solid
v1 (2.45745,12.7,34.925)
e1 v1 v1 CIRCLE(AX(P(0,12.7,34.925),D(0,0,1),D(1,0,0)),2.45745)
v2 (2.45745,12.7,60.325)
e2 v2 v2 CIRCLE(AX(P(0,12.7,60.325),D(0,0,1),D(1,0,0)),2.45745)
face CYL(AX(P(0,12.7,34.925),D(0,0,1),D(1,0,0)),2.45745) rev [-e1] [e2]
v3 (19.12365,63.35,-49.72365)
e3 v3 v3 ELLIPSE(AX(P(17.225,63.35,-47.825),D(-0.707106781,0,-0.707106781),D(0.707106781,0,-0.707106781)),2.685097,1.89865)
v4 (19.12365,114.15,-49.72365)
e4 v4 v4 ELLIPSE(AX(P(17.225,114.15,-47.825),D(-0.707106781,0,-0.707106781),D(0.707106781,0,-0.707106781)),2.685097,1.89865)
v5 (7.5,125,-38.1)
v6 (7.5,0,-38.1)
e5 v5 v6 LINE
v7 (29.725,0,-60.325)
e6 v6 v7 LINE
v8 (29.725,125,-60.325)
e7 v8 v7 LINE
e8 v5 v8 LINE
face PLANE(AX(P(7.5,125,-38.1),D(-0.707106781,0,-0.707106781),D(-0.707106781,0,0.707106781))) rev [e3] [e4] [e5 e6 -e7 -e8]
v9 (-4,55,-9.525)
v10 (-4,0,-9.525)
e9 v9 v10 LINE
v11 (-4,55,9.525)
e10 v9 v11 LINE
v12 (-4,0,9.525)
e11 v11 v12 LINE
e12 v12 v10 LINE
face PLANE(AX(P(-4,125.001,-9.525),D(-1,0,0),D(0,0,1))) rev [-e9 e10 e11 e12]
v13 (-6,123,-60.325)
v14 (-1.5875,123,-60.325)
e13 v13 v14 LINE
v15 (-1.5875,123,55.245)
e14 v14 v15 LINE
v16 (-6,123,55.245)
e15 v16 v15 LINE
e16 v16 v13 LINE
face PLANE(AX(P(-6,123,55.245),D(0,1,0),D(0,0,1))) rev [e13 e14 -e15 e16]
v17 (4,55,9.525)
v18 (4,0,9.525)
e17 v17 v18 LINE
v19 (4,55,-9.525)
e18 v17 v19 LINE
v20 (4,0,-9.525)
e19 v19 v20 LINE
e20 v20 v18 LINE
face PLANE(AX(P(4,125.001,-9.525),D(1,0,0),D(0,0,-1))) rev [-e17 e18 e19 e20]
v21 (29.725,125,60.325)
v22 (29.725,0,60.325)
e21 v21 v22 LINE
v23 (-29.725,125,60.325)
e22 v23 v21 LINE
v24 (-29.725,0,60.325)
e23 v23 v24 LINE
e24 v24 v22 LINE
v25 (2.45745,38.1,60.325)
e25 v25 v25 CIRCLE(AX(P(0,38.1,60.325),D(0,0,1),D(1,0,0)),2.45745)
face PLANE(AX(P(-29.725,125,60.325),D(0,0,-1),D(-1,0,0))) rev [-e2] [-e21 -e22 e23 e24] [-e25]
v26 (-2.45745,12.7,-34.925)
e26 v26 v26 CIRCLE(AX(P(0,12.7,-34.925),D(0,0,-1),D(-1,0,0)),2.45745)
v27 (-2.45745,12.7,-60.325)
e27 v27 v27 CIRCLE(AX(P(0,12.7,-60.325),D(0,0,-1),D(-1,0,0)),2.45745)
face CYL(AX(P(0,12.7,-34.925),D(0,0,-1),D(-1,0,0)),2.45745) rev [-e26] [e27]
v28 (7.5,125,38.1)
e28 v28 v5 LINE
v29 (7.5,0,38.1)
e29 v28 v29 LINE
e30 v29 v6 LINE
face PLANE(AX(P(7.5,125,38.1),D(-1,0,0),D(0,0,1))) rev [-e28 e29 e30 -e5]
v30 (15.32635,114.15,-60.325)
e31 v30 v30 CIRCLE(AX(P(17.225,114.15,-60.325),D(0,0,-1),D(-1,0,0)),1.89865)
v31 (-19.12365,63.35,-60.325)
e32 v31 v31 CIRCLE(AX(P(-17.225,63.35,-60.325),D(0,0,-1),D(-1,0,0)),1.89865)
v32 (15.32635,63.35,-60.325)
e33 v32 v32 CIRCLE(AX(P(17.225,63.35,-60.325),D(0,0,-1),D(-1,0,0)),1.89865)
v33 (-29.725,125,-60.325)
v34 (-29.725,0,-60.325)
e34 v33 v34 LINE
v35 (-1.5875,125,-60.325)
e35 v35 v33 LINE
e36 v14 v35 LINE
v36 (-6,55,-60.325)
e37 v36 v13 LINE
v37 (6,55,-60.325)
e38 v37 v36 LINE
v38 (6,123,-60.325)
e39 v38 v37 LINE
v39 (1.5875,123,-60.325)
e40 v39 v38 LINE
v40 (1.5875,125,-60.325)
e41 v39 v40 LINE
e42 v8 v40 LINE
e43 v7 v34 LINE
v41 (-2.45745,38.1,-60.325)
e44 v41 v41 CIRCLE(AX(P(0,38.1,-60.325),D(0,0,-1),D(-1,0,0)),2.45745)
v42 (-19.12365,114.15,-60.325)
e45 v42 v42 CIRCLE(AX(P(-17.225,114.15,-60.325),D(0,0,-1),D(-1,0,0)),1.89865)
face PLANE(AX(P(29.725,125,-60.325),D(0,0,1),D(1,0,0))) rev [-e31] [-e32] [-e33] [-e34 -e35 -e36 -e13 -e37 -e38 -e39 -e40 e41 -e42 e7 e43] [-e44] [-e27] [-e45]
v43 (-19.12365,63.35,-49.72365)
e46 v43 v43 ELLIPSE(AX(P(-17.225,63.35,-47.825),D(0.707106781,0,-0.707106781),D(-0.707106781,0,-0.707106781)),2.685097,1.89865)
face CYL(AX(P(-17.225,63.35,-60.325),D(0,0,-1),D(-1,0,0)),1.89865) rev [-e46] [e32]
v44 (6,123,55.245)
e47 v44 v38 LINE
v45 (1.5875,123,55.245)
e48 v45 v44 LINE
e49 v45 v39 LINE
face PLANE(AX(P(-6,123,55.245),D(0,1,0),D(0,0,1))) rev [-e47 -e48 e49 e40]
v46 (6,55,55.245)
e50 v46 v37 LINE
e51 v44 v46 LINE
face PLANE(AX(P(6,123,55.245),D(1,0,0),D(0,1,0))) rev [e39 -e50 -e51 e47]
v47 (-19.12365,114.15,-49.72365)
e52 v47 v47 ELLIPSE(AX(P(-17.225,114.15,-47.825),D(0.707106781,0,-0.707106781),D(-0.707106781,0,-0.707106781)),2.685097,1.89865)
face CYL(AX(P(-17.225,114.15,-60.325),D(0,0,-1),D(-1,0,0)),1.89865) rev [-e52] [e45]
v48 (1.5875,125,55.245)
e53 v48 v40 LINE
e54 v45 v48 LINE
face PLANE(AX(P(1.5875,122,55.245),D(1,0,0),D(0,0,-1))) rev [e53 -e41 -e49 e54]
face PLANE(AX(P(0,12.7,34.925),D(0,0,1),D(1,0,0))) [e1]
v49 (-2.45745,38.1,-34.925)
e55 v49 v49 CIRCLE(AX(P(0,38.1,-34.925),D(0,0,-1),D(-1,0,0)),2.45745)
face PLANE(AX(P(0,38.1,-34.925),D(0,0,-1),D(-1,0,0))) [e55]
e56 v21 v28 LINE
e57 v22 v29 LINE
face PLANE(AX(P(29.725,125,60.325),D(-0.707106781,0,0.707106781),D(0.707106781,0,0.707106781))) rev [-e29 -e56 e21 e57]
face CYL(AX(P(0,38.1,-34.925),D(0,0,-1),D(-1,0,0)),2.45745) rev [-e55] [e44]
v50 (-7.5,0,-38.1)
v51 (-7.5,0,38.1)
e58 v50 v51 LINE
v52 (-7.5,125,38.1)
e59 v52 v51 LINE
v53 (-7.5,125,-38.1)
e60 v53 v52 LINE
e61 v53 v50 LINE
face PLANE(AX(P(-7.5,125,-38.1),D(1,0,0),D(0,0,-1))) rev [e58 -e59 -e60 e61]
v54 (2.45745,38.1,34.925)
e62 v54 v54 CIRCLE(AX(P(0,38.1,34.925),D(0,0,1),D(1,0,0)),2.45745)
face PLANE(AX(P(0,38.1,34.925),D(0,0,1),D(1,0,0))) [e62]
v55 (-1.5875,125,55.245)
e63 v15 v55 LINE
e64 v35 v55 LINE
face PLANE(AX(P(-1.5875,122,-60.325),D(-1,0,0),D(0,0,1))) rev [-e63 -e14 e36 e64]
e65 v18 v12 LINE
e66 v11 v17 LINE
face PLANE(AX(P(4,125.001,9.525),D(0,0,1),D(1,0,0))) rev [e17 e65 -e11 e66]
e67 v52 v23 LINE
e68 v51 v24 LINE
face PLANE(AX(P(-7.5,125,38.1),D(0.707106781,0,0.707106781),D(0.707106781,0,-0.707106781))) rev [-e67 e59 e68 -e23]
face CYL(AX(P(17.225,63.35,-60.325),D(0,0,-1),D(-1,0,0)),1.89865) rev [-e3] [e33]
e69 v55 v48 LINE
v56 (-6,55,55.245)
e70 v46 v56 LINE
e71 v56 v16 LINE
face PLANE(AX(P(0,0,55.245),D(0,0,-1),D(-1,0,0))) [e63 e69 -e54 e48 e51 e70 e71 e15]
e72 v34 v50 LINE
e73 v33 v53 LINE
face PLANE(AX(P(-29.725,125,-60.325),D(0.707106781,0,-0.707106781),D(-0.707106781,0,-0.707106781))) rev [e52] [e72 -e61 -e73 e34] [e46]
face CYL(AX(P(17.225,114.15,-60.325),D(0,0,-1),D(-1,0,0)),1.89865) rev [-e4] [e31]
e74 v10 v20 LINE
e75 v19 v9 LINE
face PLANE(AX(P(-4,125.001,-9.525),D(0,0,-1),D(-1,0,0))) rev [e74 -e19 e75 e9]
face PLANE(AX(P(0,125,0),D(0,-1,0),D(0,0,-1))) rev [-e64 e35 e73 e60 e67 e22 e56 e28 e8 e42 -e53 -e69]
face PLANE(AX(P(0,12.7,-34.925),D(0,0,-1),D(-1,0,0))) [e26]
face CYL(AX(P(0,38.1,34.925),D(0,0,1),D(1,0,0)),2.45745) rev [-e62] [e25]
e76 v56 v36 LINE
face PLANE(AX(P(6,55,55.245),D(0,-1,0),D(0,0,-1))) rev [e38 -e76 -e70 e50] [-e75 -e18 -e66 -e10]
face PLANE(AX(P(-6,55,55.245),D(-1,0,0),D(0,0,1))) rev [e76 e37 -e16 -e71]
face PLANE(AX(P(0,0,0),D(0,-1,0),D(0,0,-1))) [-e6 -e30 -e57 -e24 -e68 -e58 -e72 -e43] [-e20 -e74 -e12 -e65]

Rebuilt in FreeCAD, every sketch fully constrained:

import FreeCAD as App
import Part
import Sketcher

V = App.Vector


def add_polygon(sketch, points):
    """Adds a closed chain of lines whose ends are joined by coincident constraints."""
    first, n = sketch.GeometryCount, len(points)
    for a, b in zip(points, points[1:] + points[:1]):
        sketch.addGeometry(Part.LineSegment(App.Vector(*a, 0), App.Vector(*b, 0)), False)
    for i in range(n):
        sketch.addConstraint(Sketcher.Constraint("Coincident", first + i, 2, first + (i + 1) % n, 1))

doc = App.newDocument("Part")
body = doc.addObject("PartDesign::Body", "Body")

# Sketch on XZ plane
sketch1 = body.newObject("Sketcher::SketchObject", "Sketch")
sketch1.AttachmentSupport = (doc.getObject("XZ_Plane"), [""])
sketch1.MapMode = "FlatFace"
add_polygon(sketch1, [(-30, 60), (30, 60), (8, 38), (8, -38), (30, -60), (-30, -60), (-8, -38), (-8, 38)])  # lines 0-7
sketch1.addConstraint(Sketcher.Constraint("Horizontal", 0))
sketch1.addConstraint(Sketcher.Constraint("Vertical", 2))
sketch1.addConstraint(Sketcher.Constraint("Horizontal", 4))
sketch1.addConstraint(Sketcher.Constraint("Vertical", 6))
sketch1.addConstraint(Sketcher.Constraint("Symmetric", 0, 2, 4, 2, -1, 1))
sketch1.addConstraint(Sketcher.Constraint("Symmetric", 1, 2, 5, 2, -1, 1))
sketch1.addConstraint(Sketcher.Constraint("Perpendicular", 1, 3))
sketch1.addConstraint(Sketcher.Constraint("Perpendicular", 5, 7))
sketch1.addConstraint(Sketcher.Constraint("Horizontal", 2, 2, 5, 2))
sketch1.addConstraint(Sketcher.Constraint("Horizontal", 1, 2, 6, 2))
sketch1.addConstraint(Sketcher.Constraint("Vertical", 0, 2, 3, 2))
sketch1.addConstraint(Sketcher.Constraint("DistanceY", 2, 2, 2, 1, 76.2))
sketch1.addConstraint(Sketcher.Constraint("DistanceX", 5, 2, 2, 2, 15.0))
sketch1.addConstraint(Sketcher.Constraint("DistanceX", 0, 1, 0, 2, 59.45))
pad1 = body.newObject("PartDesign::Pad", "Pad")
pad1.Profile = sketch1
pad1.Length = 125
pad1.Reversed = True

# Sketch on XY plane
sketch2 = body.newObject("Sketcher::SketchObject", "Sketch001")
sketch2.AttachmentSupport = (doc.getObject("XY_Plane"), [""])
sketch2.MapMode = "FlatFace"
sketch2.AttachmentOffset = App.Placement(V(0, 0, -60.325), App.Rotation())
add_polygon(sketch2, [(6, 123), (6, 55), (-6, 55), (-6, 123)])  # lines 0-3
sketch2.addConstraint(Sketcher.Constraint("Vertical", 0))
sketch2.addConstraint(Sketcher.Constraint("Horizontal", 1))
sketch2.addConstraint(Sketcher.Constraint("Vertical", 2))
sketch2.addConstraint(Sketcher.Constraint("Horizontal", 3))
sketch2.addConstraint(Sketcher.Constraint("DistanceX", 1, 2, 1, 1, 12.0))
sketch2.addConstraint(Sketcher.Constraint("DistanceY", 0, 2, 0, 1, 68.0))
sketch2.addConstraint(Sketcher.Constraint("DistanceX", -1, 1, 0, 2, 6.0))
sketch2.addConstraint(Sketcher.Constraint("DistanceY", -1, 1, 0, 2, 55.0))
pocket1 = body.newObject("PartDesign::Pocket", "Pocket")
pocket1.Profile = sketch2
pocket1.Length = 115.57
pocket1.Reversed = True

# Sketch on XZ plane
sketch3 = body.newObject("Sketcher::SketchObject", "Sketch002")
sketch3.AttachmentSupport = (doc.getObject("XZ_Plane"), [""])
sketch3.MapMode = "FlatFace"
sketch3.AttachmentOffset = App.Placement(V(0, 0, -125), App.Rotation())
add_polygon(sketch3, [(-1.6, -60.3), (-1.6, 55.2), (1.6, 55.2), (1.6, -60.3)])  # lines 0-3
sketch3.addConstraint(Sketcher.Constraint("Vertical", 0))
sketch3.addConstraint(Sketcher.Constraint("Horizontal", 1))
sketch3.addConstraint(Sketcher.Constraint("Vertical", 2))
sketch3.addConstraint(Sketcher.Constraint("Horizontal", 3))
sketch3.addConstraint(Sketcher.Constraint("DistanceY", 0, 1, 0, 2, 115.57))
sketch3.addConstraint(Sketcher.Constraint("DistanceX", 1, 1, 1, 2, 3.175))
sketch3.addConstraint(Sketcher.Constraint("DistanceY", -1, 1, 0, 2, 55.245))
sketch3.addConstraint(Sketcher.Constraint("DistanceX", 0, 2, -1, 1, 1.5875))
pocket2 = body.newObject("PartDesign::Pocket", "Pocket001")
pocket2.Profile = sketch3
pocket2.Length = 3
pocket2.Reversed = True

# Sketch on XZ plane
sketch4 = body.newObject("Sketcher::SketchObject", "Sketch003")
sketch4.AttachmentSupport = (doc.getObject("XZ_Plane"), [""])
sketch4.MapMode = "FlatFace"
add_polygon(sketch4, [(-4, 10), (-4, -10), (4, -10), (4, 10)])  # lines 0-3
sketch4.addConstraint(Sketcher.Constraint("Vertical", 0))
sketch4.addConstraint(Sketcher.Constraint("Horizontal", 1))
sketch4.addConstraint(Sketcher.Constraint("Vertical", 2))
sketch4.addConstraint(Sketcher.Constraint("Horizontal", 3))
sketch4.addConstraint(Sketcher.Constraint("Symmetric", 0, 2, 2, 2, -1, 1))
sketch4.addConstraint(Sketcher.Constraint("DistanceX", 1, 1, 1, 2, 8.0))
sketch4.addConstraint(Sketcher.Constraint("DistanceY", 0, 2, 0, 1, 19.05))
pocket3 = body.newObject("PartDesign::Pocket", "Pocket002")
pocket3.Profile = sketch4
pocket3.Type = "UpToFirst"

# Sketch on XY plane
sketch5 = body.newObject("Sketcher::SketchObject", "Sketch004")
sketch5.AttachmentSupport = (doc.getObject("XY_Plane"), [""])
sketch5.MapMode = "FlatFace"
sketch5.AttachmentOffset = App.Placement(V(0, 0, -60.325), App.Rotation())
sketch5.addGeometry(Part.Circle(V(0, 12.7, 0), V(0, 0, 1), 2.5), False)
sketch5.addGeometry(Part.Circle(V(0, 38.1, 0), V(0, 0, 1), 2.5), False)
sketch5.addConstraint(Sketcher.Constraint("Equal", 0, 1))
sketch5.addConstraint(Sketcher.Constraint("PointOnObject", 0, 3, -2))
sketch5.addConstraint(Sketcher.Constraint("PointOnObject", 1, 3, -2))
sketch5.addConstraint(Sketcher.Constraint("Diameter", 0, 4.9149))
sketch5.addConstraint(Sketcher.Constraint("DistanceY", -1, 1, 0, 3, 12.7))
sketch5.addConstraint(Sketcher.Constraint("DistanceY", -1, 1, 1, 3, 38.1))
pocket4 = body.newObject("PartDesign::Pocket", "Pocket003")
pocket4.Profile = sketch5
pocket4.Length = 25.4
pocket4.Reversed = True

# Sketch on XY plane
sketch6 = body.newObject("Sketcher::SketchObject", "Sketch005")
sketch6.AttachmentSupport = (doc.getObject("XY_Plane"), [""])
sketch6.MapMode = "FlatFace"
sketch6.AttachmentOffset = App.Placement(V(0, 0, 34.925), App.Rotation())
sketch6.addGeometry(Part.Circle(V(0, 38.1, 0), V(0, 0, 1), 2.5), False)
sketch6.addGeometry(Part.Circle(V(0, 12.7, 0), V(0, 0, 1), 2.5), False)
sketch6.addConstraint(Sketcher.Constraint("Equal", 0, 1))
sketch6.addConstraint(Sketcher.Constraint("PointOnObject", 0, 3, -2))
sketch6.addConstraint(Sketcher.Constraint("PointOnObject", 1, 3, -2))
sketch6.addConstraint(Sketcher.Constraint("Diameter", 0, 4.9149))
sketch6.addConstraint(Sketcher.Constraint("DistanceY", -1, 1, 0, 3, 38.1))
sketch6.addConstraint(Sketcher.Constraint("DistanceY", -1, 1, 1, 3, 12.7))
pocket5 = body.newObject("PartDesign::Pocket", "Pocket004")
pocket5.Profile = sketch6
pocket5.Length = 25.4
pocket5.Reversed = True

# Sketch on XY plane
sketch7 = body.newObject("Sketcher::SketchObject", "Sketch006")
sketch7.AttachmentSupport = (doc.getObject("XY_Plane"), [""])
sketch7.MapMode = "FlatFace"
sketch7.AttachmentOffset = App.Placement(V(0, 0, -60.325), App.Rotation())
sketch7.addGeometry(Part.Circle(V(17.2, 114.2, 0), V(0, 0, 1), 1.9), False)
sketch7.addGeometry(Part.Circle(V(17.2, 63.4, 0), V(0, 0, 1), 1.9), False)
sketch7.addGeometry(Part.Circle(V(-17.2, 114.2, 0), V(0, 0, 1), 1.9), False)
sketch7.addGeometry(Part.Circle(V(-17.2, 63.4, 0), V(0, 0, 1), 1.9), False)
sketch7.addConstraint(Sketcher.Constraint("Equal", 0, 1))
sketch7.addConstraint(Sketcher.Constraint("Equal", 1, 2))
sketch7.addConstraint(Sketcher.Constraint("Equal", 2, 3))
sketch7.addConstraint(Sketcher.Constraint("Symmetric", 0, 3, 2, 3, -2))
sketch7.addConstraint(Sketcher.Constraint("Symmetric", 1, 3, 3, 3, -2))
sketch7.addConstraint(Sketcher.Constraint("Vertical", 0, 3, 1, 3))
sketch7.addConstraint(Sketcher.Constraint("Diameter", 0, 3.7973))
sketch7.addConstraint(Sketcher.Constraint("DistanceY", 1, 3, 0, 3, 50.8))
sketch7.addConstraint(Sketcher.Constraint("DistanceY", -1, 1, 0, 3, 114.15))
sketch7.addConstraint(Sketcher.Constraint("DistanceX", 2, 3, 0, 3, 34.45))
doc.recompute()
hole = body.newObject("PartDesign::Hole", "Hole")
hole.Profile = sketch7
hole.ThreadType = "None"
hole.Diameter = 3.7973
hole.DepthType = "Dimension"
hole.Depth = 30
hole.DrillPoint = "Angled"
hole.DrillPointAngle = 118
hole.Reversed = True

doc.recompute()
